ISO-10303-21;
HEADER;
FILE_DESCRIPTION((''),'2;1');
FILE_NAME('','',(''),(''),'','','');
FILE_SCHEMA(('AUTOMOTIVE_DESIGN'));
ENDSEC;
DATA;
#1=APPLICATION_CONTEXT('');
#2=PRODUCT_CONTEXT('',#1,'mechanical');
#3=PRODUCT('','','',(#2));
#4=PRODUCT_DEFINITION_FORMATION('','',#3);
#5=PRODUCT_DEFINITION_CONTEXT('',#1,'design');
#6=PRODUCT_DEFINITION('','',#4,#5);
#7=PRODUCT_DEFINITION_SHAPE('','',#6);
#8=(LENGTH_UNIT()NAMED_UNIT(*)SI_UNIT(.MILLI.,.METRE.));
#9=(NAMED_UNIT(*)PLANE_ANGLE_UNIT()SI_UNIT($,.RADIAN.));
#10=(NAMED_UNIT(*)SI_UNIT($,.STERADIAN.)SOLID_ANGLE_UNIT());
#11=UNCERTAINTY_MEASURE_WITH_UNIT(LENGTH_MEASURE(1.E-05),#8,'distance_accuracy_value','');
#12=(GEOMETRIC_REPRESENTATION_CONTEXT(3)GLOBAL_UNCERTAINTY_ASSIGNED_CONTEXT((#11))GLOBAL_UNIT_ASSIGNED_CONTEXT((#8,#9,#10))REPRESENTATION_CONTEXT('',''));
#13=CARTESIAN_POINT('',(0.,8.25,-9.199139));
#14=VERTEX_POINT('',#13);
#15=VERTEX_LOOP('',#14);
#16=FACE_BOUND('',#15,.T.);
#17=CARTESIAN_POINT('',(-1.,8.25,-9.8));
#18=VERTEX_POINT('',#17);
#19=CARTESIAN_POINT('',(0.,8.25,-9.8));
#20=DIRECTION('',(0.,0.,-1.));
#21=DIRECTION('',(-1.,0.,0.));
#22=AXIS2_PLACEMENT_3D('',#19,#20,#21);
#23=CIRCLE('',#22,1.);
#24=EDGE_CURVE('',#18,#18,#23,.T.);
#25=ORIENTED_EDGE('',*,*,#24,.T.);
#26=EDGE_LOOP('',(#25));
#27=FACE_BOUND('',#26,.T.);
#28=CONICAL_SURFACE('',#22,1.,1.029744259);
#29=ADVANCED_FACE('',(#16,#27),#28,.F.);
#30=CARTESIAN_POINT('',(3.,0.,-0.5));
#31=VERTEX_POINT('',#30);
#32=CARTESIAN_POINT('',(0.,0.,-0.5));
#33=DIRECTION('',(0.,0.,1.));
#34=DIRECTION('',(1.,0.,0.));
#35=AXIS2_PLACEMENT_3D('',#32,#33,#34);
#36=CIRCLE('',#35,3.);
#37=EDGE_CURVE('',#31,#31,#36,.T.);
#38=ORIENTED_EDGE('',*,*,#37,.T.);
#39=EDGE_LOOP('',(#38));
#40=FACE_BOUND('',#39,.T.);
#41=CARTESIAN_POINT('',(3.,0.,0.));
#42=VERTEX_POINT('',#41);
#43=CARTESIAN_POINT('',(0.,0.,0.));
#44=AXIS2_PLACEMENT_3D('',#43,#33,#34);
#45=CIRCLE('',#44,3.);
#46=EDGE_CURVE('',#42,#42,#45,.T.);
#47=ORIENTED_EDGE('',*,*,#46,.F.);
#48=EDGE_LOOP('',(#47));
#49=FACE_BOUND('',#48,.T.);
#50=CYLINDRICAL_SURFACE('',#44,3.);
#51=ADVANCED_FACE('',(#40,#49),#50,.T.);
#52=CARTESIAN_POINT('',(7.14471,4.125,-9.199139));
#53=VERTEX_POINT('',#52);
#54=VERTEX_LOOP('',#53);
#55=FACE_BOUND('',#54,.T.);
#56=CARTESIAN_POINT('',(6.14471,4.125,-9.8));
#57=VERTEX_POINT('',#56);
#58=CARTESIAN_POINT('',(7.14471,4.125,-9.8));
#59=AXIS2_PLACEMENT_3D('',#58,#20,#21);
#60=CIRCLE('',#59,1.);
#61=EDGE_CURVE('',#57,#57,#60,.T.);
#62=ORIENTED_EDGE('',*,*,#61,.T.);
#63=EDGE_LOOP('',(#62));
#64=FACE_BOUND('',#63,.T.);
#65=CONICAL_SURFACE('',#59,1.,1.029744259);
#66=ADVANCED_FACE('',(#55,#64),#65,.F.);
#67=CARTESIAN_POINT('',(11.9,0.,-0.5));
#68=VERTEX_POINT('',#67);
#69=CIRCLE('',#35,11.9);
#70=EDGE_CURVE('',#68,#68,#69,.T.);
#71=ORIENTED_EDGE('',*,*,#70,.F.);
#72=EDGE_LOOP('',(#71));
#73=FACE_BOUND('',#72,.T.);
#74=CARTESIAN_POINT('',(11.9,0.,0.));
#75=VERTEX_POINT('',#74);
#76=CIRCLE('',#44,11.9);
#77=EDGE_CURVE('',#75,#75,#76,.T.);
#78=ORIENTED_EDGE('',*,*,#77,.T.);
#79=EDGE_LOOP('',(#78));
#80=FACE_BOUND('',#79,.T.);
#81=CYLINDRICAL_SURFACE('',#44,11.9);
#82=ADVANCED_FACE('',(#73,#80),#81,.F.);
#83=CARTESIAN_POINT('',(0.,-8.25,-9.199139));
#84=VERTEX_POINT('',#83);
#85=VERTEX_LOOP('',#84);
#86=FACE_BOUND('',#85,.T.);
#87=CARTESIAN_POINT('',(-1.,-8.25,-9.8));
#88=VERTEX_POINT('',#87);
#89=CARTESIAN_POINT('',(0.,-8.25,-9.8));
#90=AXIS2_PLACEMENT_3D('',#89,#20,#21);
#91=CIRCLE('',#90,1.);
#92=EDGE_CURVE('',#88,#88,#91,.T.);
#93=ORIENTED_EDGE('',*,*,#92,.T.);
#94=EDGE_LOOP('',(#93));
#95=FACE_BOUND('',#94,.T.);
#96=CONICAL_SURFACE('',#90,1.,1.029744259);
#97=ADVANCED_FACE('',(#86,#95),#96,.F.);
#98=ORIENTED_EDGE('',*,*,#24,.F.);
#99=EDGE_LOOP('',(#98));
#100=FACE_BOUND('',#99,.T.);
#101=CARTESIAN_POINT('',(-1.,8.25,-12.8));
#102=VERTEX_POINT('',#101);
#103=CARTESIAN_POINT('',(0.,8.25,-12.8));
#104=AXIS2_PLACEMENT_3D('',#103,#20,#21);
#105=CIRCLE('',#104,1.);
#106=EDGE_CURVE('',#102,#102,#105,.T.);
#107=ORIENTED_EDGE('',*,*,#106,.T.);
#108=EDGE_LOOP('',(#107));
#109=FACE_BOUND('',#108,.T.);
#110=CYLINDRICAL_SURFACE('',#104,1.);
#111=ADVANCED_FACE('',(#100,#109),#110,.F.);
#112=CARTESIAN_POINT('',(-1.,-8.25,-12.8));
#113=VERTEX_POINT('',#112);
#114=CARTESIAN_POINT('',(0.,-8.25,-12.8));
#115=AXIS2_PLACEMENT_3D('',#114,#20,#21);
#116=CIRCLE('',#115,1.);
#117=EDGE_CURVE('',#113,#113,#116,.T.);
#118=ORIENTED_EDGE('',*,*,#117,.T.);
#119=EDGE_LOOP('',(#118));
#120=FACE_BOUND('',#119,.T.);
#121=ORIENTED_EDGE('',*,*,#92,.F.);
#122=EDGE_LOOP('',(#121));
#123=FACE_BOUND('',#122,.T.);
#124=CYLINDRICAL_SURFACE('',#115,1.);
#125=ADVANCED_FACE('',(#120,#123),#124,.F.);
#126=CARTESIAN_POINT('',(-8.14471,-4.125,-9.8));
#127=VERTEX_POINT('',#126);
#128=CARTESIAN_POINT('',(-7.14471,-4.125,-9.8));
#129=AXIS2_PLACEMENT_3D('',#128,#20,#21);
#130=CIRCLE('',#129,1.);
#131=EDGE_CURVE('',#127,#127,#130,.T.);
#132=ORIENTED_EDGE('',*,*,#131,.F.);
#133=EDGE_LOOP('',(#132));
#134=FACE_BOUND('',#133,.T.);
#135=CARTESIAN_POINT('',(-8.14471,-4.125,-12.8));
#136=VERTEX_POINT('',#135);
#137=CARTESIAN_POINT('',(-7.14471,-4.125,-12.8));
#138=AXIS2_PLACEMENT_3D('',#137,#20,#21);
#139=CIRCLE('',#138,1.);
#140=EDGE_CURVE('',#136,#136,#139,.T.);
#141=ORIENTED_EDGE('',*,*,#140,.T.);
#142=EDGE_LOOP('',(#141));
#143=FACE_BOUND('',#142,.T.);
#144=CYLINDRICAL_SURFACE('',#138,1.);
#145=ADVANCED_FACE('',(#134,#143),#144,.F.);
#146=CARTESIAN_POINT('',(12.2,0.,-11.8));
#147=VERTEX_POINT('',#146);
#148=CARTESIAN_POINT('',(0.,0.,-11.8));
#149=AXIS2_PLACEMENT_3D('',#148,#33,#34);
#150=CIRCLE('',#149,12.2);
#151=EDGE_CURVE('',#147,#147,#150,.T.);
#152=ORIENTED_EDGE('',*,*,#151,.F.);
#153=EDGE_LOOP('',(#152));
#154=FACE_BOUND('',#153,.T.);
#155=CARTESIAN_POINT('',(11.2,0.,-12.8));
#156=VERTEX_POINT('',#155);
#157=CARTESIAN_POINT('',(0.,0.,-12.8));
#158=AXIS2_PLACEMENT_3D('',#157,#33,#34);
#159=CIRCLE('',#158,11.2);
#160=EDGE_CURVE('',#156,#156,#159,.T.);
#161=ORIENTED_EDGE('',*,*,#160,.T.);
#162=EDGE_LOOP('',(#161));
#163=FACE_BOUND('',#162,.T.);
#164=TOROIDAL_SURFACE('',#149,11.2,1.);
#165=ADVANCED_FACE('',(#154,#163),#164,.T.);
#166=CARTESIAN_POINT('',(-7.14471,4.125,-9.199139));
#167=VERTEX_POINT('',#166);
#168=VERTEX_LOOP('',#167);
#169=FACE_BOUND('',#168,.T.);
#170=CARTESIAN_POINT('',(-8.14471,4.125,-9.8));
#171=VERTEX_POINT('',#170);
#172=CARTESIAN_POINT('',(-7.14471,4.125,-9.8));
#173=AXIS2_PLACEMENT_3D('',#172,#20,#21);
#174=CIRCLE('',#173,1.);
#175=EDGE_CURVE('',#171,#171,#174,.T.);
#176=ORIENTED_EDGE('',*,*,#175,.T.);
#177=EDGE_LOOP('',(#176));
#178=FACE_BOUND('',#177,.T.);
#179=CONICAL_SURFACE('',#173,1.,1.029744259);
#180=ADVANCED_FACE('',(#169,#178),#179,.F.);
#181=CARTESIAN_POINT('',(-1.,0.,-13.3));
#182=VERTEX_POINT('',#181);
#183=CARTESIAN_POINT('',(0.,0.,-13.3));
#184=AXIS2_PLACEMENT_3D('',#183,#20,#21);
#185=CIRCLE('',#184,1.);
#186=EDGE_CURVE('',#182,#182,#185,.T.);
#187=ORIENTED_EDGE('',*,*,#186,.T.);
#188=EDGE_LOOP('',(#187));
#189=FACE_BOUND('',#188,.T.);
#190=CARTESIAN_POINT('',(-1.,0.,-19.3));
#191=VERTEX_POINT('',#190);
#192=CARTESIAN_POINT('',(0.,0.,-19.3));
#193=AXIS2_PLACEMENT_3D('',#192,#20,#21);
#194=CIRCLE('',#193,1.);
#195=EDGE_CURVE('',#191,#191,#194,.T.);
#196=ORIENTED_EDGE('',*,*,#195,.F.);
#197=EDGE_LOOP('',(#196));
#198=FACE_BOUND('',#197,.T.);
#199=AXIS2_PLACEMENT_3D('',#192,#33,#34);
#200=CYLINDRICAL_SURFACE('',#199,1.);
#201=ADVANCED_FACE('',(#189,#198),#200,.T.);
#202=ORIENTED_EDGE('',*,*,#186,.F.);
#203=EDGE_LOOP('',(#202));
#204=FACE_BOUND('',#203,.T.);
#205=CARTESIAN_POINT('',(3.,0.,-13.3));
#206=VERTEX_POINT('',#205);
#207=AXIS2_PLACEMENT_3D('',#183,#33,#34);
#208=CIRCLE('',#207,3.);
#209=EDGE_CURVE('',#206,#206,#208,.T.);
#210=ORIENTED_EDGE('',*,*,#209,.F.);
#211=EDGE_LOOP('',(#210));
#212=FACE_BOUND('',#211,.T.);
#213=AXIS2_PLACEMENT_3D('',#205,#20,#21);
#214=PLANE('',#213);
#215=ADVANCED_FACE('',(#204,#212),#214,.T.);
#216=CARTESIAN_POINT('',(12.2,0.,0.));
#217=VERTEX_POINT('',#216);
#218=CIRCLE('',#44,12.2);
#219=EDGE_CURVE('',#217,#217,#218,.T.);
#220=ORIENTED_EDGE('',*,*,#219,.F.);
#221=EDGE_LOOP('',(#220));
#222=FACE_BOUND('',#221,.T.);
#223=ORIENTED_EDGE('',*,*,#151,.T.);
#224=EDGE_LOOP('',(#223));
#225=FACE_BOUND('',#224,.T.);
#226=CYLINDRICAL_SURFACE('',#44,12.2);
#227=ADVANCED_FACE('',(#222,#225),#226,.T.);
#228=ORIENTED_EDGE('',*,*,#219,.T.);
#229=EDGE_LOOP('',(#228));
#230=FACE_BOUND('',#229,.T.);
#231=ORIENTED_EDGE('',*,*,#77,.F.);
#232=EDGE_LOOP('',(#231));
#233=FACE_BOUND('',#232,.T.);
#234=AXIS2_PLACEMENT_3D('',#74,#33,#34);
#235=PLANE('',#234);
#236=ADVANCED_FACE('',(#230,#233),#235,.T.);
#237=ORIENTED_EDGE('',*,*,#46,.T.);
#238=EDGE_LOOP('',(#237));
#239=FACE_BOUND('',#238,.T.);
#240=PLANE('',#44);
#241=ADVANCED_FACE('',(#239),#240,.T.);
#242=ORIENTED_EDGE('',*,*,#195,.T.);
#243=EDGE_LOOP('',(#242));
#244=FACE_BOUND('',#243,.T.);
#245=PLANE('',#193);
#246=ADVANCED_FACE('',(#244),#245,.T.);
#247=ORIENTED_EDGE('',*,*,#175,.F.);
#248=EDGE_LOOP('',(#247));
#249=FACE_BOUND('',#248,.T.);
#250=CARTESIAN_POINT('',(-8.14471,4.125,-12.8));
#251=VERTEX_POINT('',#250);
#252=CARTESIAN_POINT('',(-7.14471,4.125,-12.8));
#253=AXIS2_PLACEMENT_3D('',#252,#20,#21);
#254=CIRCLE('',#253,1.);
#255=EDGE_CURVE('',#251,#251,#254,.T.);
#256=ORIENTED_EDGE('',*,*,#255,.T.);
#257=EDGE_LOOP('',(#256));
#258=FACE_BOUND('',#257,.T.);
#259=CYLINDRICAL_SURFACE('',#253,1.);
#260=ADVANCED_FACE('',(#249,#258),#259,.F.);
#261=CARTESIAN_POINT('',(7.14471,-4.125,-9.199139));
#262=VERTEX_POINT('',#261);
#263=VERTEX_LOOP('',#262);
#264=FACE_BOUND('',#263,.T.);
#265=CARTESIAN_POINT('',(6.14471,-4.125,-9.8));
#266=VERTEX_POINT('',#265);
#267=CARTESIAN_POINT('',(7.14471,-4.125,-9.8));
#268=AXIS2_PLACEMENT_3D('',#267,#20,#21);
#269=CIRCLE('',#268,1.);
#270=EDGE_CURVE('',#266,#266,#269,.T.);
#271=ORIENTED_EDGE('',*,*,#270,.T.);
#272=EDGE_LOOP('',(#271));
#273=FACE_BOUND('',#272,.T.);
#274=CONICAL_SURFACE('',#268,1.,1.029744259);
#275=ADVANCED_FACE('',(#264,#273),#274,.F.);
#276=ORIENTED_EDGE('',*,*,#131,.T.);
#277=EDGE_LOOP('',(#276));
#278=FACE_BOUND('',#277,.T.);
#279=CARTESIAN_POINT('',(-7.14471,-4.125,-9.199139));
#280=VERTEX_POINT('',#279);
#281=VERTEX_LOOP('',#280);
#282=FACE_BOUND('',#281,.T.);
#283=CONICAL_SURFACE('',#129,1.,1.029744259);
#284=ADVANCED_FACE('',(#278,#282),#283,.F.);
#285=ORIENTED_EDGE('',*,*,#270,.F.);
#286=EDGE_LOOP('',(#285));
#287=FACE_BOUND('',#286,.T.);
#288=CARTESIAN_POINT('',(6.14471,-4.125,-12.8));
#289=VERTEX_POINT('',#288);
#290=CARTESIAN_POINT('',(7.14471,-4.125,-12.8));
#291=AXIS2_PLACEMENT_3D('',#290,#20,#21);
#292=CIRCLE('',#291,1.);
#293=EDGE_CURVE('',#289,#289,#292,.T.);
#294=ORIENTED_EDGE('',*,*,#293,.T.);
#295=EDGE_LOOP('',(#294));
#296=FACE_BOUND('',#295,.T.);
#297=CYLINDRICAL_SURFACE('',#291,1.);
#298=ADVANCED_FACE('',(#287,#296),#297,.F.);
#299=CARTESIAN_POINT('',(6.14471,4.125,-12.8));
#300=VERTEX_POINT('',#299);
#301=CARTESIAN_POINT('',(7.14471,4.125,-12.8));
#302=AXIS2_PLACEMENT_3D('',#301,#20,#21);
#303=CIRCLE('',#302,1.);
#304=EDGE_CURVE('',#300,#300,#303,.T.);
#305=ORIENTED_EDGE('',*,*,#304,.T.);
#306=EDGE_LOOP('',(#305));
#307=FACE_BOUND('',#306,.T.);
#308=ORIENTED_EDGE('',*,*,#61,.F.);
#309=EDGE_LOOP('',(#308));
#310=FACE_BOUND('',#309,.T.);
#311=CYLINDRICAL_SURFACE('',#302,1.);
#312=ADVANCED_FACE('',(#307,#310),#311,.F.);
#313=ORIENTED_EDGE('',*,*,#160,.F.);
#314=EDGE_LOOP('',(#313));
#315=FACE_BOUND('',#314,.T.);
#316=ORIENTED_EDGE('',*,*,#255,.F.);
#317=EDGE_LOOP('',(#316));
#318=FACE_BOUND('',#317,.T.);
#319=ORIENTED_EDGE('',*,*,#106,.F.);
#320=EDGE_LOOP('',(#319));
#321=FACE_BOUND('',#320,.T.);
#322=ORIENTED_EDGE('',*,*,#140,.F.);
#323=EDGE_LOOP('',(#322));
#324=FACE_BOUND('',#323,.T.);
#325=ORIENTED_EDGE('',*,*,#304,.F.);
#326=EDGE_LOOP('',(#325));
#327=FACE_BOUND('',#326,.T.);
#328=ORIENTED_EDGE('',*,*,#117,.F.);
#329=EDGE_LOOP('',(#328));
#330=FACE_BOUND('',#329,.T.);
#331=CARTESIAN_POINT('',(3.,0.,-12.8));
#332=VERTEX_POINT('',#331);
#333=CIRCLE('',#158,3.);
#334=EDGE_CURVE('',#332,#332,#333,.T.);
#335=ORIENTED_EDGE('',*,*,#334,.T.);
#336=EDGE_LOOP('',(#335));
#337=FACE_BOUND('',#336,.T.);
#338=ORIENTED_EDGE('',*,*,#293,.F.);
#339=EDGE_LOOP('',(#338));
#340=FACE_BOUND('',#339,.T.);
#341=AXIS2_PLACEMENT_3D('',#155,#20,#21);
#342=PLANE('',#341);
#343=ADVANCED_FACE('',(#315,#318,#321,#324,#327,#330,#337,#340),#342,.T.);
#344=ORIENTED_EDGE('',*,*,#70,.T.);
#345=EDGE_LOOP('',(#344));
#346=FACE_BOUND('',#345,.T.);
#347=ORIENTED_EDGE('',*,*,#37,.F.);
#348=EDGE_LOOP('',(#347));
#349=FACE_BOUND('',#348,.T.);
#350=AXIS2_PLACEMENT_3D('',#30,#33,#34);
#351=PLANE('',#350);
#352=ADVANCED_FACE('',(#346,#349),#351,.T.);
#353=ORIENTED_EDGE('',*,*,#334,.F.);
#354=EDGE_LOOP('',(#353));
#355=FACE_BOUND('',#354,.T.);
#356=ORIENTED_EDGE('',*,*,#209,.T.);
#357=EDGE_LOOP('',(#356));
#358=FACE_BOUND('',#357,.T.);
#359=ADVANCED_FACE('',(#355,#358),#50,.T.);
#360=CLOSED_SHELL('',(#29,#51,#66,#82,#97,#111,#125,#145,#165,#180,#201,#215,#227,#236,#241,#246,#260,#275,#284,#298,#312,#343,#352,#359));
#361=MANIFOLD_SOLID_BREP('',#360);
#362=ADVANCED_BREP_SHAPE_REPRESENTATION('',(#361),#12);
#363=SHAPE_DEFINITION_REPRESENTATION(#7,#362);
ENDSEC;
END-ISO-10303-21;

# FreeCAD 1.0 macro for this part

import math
import FreeCAD as App
import Part
import Sketcher
Q = App.Units.Quantity

doc = App.newDocument("Part")
body = doc.addObject("PartDesign::Body", "Body")

# Sketch on XZ plane
sketch1 = body.newObject("Sketcher::SketchObject", "Sketch")
sketch1.AttachmentSupport = (doc.getObject("XZ_Plane"), [""])
sketch1.MapMode = "FlatFace"
sketch1.addGeometry([
    Part.LineSegment(App.Vector(0, 0, 0), App.Vector(3, 0, 0)),  # 0
    Part.LineSegment(App.Vector(3, 0, 0), App.Vector(3, -0.5, 0)),  # 1
    Part.LineSegment(App.Vector(3, -0.5, 0), App.Vector(11.9, -0.5, 0)),  # 2
    Part.LineSegment(App.Vector(11.9, -0.5, 0), App.Vector(11.9, 0, 0)),  # 3
    Part.LineSegment(App.Vector(11.9, 0, 0), App.Vector(12.2, 0, 0)),  # 4
    Part.LineSegment(App.Vector(12.2, 0, 0), App.Vector(12.2, -11.8, 0)),  # 5
    Part.ArcOfCircle(Part.Circle(App.Vector(11.2, -11.8, 0), App.Vector(0, 0, 1), 1), math.radians(-90), math.radians(0)),  # 6
    Part.LineSegment(App.Vector(11.2, -12.8, 0), App.Vector(3, -12.8, 0)),  # 7
    Part.LineSegment(App.Vector(3, -12.8, 0), App.Vector(3, -13.3, 0)),  # 8
    Part.LineSegment(App.Vector(3, -13.3, 0), App.Vector(0, -13.3, 0)),  # 9
    Part.LineSegment(App.Vector(0, -13.3, 0), App.Vector(0, 0, 0)),  # 10
], False)
sketch1.addConstraint([
    Sketcher.Constraint("Coincident", 0, 2, 1, 1),
    Sketcher.Constraint("Coincident", 1, 2, 2, 1),
    Sketcher.Constraint("Coincident", 2, 2, 3, 1),
    Sketcher.Constraint("Coincident", 3, 2, 4, 1),
    Sketcher.Constraint("Coincident", 4, 2, 5, 1),
    Sketcher.Constraint("Tangent", 5, 2, 6, 2),
    Sketcher.Constraint("Tangent", 6, 1, 7, 1),
    Sketcher.Constraint("Coincident", 7, 2, 8, 1),
    Sketcher.Constraint("Coincident", 8, 2, 9, 1),
    Sketcher.Constraint("Coincident", 9, 2, 10, 1),
    Sketcher.Constraint("Coincident", 10, 2, 0, 1),
    Sketcher.Constraint("Horizontal", 0),
    Sketcher.Constraint("Vertical", 1),
    Sketcher.Constraint("Horizontal", 2),
    Sketcher.Constraint("Vertical", 3),
    Sketcher.Constraint("Horizontal", 4),
    Sketcher.Constraint("Vertical", 5),
    Sketcher.Constraint("Horizontal", 7),
    Sketcher.Constraint("Vertical", 8),
    Sketcher.Constraint("Horizontal", 9),
    Sketcher.Constraint("Vertical", 10),
    Sketcher.Constraint("Coincident", 10, 2, -1, 1),
    Sketcher.Constraint("PointOnObject", 3, 2, -1),
    Sketcher.Constraint("Vertical", 1, 2, 7, 2),
    Sketcher.Constraint("Equal", 3, 8),
    Sketcher.Constraint("Radius", 6, Q("1 mm")),
    Sketcher.Constraint("DistanceX", 0, 1, 0, 2, Q("3 mm")),
    Sketcher.Constraint("DistanceX", 2, 1, 2, 2, Q("8.9 mm")),
    Sketcher.Constraint("DistanceX", 4, 1, 4, 2, Q("0.3 mm")),
    Sketcher.Constraint("DistanceY", 1, 2, 1, 1, Q("0.5 mm")),
    Sketcher.Constraint("DistanceY", 5, 2, 5, 1, Q("11.8 mm")),
])
revolution = body.newObject("PartDesign::Revolution", "Revolution")
revolution.Profile = sketch1
revolution.ReferenceAxis = (sketch1, ["V_Axis"])
revolution.Angle = 360

# Sketch on XY plane
sketch2 = body.newObject("Sketcher::SketchObject", "Sketch001")
sketch2.AttachmentSupport = (doc.getObject("XY_Plane"), [""])
sketch2.MapMode = "FlatFace"
sketch2.AttachmentOffset = App.Placement(App.Vector(0, 0, -13.3), App.Rotation())
sketch2.addGeometry(Part.Circle(App.Vector(0, 0, 0), App.Vector(0, 0, 1), 1), False)
sketch2.addConstraint([
    Sketcher.Constraint("Coincident", 0, 3, -1, 1),
    Sketcher.Constraint("Diameter", 0, Q("2 mm")),
])
pad1 = body.newObject("PartDesign::Pad", "Pad")
pad1.Profile = sketch2
pad1.Length = 6
pad1.Reversed = True

# Sketch on YZ plane
sketch3 = body.newObject("Sketcher::SketchObject", "Sketch002")
sketch3.AttachmentSupport = (doc.getObject("YZ_Plane"), [""])
sketch3.MapMode = "FlatFace"
sketch3.addGeometry([
    Part.LineSegment(App.Vector(8.25, -9.199139, 0), App.Vector(8.25, -12.8, 0)),
    Part.LineSegment(App.Vector(8.25, -12.8, 0), App.Vector(9.25, -12.8, 0)),
    Part.LineSegment(App.Vector(9.25, -12.8, 0), App.Vector(9.25, -9.8, 0)),
    Part.LineSegment(App.Vector(9.25, -9.8, 0), App.Vector(8.25, -9.199139, 0)),
], False)
sketch3.addGeometry(Part.LineSegment(App.Vector(8.25, -12.8, 0), App.Vector(8.25, -9.199139, 0)), True)  # axis
sketch3.addConstraint([
    Sketcher.Constraint("Coincident", 0, 2, 1, 1),
    Sketcher.Constraint("Coincident", 1, 2, 2, 1),
    Sketcher.Constraint("Coincident", 2, 2, 3, 1),
    Sketcher.Constraint("Coincident", 3, 2, 0, 1),
    Sketcher.Constraint("Vertical", 0),
    Sketcher.Constraint("Horizontal", 1),
    Sketcher.Constraint("Vertical", 2),
    Sketcher.Constraint("Vertical", 4),
    Sketcher.Constraint("Coincident", 4, 1, 0, 2),
    Sketcher.Constraint("Equal", 0, 4),
    Sketcher.Constraint("DistanceX", 1, 1, 1, 2, Q("1 mm")),
    Sketcher.Constraint("DistanceY", 2, 1, 2, 2, Q("3 mm")),
    Sketcher.Constraint("Angle", 3, Q("149 deg")),
    Sketcher.Constraint("DistanceY", 0, 2, -1, 1, Q("12.8 mm")),
    Sketcher.Constraint("DistanceX", -1, 1, 0, 2, Q("8.25 mm")),
])
groove = body.newObject("PartDesign::Groove", "Groove")
groove.Profile = sketch3
groove.ReferenceAxis = (sketch3, ["Axis0"])
groove.Angle = 360
doc.recompute()

polarpattern = body.newObject("PartDesign::PolarPattern", "PolarPattern")
polarpattern.Originals = [groove]
polarpattern.Axis = (doc.getObject("Z_Axis"), [""])
polarpattern.Angle = 360
polarpattern.Occurrences = 6
body.Tip = polarpattern

doc.recompute()
